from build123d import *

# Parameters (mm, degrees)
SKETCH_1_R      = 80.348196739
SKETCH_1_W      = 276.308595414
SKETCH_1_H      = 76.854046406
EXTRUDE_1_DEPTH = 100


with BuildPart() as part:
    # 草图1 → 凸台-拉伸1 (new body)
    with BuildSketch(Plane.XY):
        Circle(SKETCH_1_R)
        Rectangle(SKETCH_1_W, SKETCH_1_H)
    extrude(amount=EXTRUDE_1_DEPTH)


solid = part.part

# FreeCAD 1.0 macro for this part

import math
import FreeCAD as App
import Part
import Sketcher

V = App.Vector
Q = App.Units.Quantity

doc = App.newDocument("Part")
body = doc.addObject("PartDesign::Body", "Body")

# Sketch on XY plane
sketch1 = body.newObject("Sketcher::SketchObject", "Sketch")
sketch1.AttachmentSupport = (doc.getObject("XY_Plane"), [""])
sketch1.MapMode = "FlatFace"
sketch1.addGeometry(Part.LineSegment(V(71, -38, 0), V(138, -38, 0)), False)
sketch1.addGeometry(Part.LineSegment(V(138, -38, 0), V(138, 38, 0)), False)
sketch1.addGeometry(Part.LineSegment(V(138, 38, 0), V(71, 38, 0)), False)
sketch1.addGeometry(Part.ArcOfCircle(Part.Circle(V(0, 0, 0), V(0, 0, 1), 80), math.radians(29), math.radians(151)), False)
sketch1.addGeometry(Part.LineSegment(V(-71, 38, 0), V(-138, 38, 0)), False)
sketch1.addGeometry(Part.LineSegment(V(-138, 38, 0), V(-138, -38, 0)), False)
sketch1.addGeometry(Part.LineSegment(V(-138, -38, 0), V(-71, -38, 0)), False)
sketch1.addGeometry(Part.ArcOfCircle(Part.Circle(V(0, 0, 0), V(0, 0, 1), 80), math.radians(-151), math.radians(-29)), False)
sketch1.addConstraint(Sketcher.Constraint("Coincident", 0, 2, 1, 1))
sketch1.addConstraint(Sketcher.Constraint("Coincident", 1, 2, 2, 1))
sketch1.addConstraint(Sketcher.Constraint("Coincident", 2, 2, 3, 1))
sketch1.addConstraint(Sketcher.Constraint("Coincident", 3, 2, 4, 1))
sketch1.addConstraint(Sketcher.Constraint("Coincident", 4, 2, 5, 1))
sketch1.addConstraint(Sketcher.Constraint("Coincident", 5, 2, 6, 1))
sketch1.addConstraint(Sketcher.Constraint("Coincident", 6, 2, 7, 1))
sketch1.addConstraint(Sketcher.Constraint("Coincident", 7, 2, 0, 1))
sketch1.addConstraint(Sketcher.Constraint("Horizontal", 0))
sketch1.addConstraint(Sketcher.Constraint("Vertical", 1))
sketch1.addConstraint(Sketcher.Constraint("Horizontal", 2))
sketch1.addConstraint(Sketcher.Constraint("Horizontal", 4))
sketch1.addConstraint(Sketcher.Constraint("Vertical", 5))
sketch1.addConstraint(Sketcher.Constraint("Horizontal", 6))
sketch1.addConstraint(Sketcher.Constraint("Coincident", 3, 3, -1, 1))
sketch1.addConstraint(Sketcher.Constraint("Coincident", 7, 3, -1, 1))
sketch1.addConstraint(Sketcher.Constraint("Equal", 3, 7))
sketch1.addConstraint(Sketcher.Constraint("Symmetric", 0, 2, 4, 2, -1, 1))
sketch1.addConstraint(Sketcher.Constraint("Horizontal", 2, 2, 3, 2))
sketch1.addConstraint(Sketcher.Constraint("Horizontal", 0, 2, 5, 2))
sketch1.addConstraint(Sketcher.Constraint("Radius", 3, Q("80.348197 mm")))
sketch1.addConstraint(Sketcher.Constraint("DistanceX", 0, 1, 0, 2, Q("67.590875 mm")))
sketch1.addConstraint(Sketcher.Constraint("DistanceY", 1, 1, 1, 2, Q("76.854046 mm")))
pad1 = body.newObject("PartDesign::Pad", "Pad")
pad1.Profile = sketch1
pad1.Length = 100

doc.recompute()
